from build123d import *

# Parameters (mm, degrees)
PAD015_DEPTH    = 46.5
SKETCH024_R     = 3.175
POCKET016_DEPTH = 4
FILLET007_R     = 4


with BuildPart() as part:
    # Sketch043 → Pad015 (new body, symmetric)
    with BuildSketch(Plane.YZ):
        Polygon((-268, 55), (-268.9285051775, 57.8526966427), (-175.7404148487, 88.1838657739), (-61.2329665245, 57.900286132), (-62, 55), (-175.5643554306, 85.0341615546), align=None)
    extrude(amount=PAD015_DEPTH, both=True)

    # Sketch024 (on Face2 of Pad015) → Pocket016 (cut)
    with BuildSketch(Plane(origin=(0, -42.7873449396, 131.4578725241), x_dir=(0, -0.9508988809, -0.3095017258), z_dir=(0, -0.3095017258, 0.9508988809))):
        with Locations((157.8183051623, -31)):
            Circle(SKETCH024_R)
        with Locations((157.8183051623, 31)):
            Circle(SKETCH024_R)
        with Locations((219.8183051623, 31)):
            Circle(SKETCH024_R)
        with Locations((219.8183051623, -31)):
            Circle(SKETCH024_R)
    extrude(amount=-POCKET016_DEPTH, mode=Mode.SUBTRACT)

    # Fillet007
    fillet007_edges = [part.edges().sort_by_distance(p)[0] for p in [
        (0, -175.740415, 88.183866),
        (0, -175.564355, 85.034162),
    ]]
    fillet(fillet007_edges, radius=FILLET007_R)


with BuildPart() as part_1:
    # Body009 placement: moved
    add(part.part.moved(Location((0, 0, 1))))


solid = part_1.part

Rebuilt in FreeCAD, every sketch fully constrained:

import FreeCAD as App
import Part
import Sketcher
Q = App.Units.Quantity


def edges_at(feature, points):
    """Names of the edges that pass closest to the given points."""
    edges = feature.Shape.Edges
    near = lambda p: min(range(len(edges)), key=lambda i: edges[i].distToShape(Part.Vertex(*p))[0])
    return sorted({f"Edge{near(p) + 1}" for p in points})

doc = App.newDocument("Part")
body = doc.addObject("PartDesign::Body", "Body")

sketch1 = doc.addObject("Sketcher::SketchObject", "Sketch")
body.addObject(sketch1)
sketch1.AttachmentSupport = (doc.YZ_Plane, [""])
sketch1.MapMode = "FlatFace"
sketch1.addGeometry([
    Part.LineSegment(App.Vector(-268.9, 57.9, 0), App.Vector(-268, 55, 0)),
    Part.LineSegment(App.Vector(-268, 55, 0), App.Vector(-175.6, 85, 0)),
    Part.LineSegment(App.Vector(-175.6, 85, 0), App.Vector(-62, 55, 0)),
    Part.LineSegment(App.Vector(-62, 55, 0), App.Vector(-61.2, 57.9, 0)),
    Part.LineSegment(App.Vector(-61.2, 57.9, 0), App.Vector(-175.7, 88.2, 0)),
    Part.LineSegment(App.Vector(-175.7, 88.2, 0), App.Vector(-268.9, 57.9, 0)),
], False)
sketch1.addConstraint([
    Sketcher.Constraint("Coincident", 0, 2, 1, 1),
    Sketcher.Constraint("Coincident", 1, 2, 2, 1),
    Sketcher.Constraint("Coincident", 2, 2, 3, 1),
    Sketcher.Constraint("Coincident", 3, 2, 4, 1),
    Sketcher.Constraint("Coincident", 4, 2, 5, 1),
    Sketcher.Constraint("Coincident", 5, 2, 0, 1),
    Sketcher.Constraint("Perpendicular", 2, 3),
    Sketcher.Constraint("Perpendicular", 3, 4),
    Sketcher.Constraint("Perpendicular", 0, 5),
    Sketcher.Constraint("Horizontal", 0, 2, 2, 2),
    Sketcher.Constraint("Equal", 0, 3),
    Sketcher.Constraint("Angle", 1, Q("18 deg")),
    Sketcher.Constraint("Distance", 0, Q("3 mm")),
    Sketcher.Constraint("Distance", 5, Q("98 mm")),
    Sketcher.Constraint("DistanceX", 0, 2, -1, 1, Q("268 mm")),
    Sketcher.Constraint("DistanceY", -1, 1, 0, 2, Q("55 mm")),
    Sketcher.Constraint("DistanceX", 2, 2, -1, 1, Q("62 mm")),
    Sketcher.Constraint("Distance", 1, Q("97.192588 mm")),
])
pad1 = doc.addObject("PartDesign::Pad", "Pad")
body.addObject(pad1)
pad1.Profile = sketch1
pad1.Length = 93
pad1.Midplane = True

sketch2 = doc.addObject("Sketcher::SketchObject", "Sketch001")
body.addObject(sketch2)
sketch2.Placement = App.Placement(App.Vector(0, -42.787345, 131.457873), App.Rotation(App.Vector(0, -0.950898881, -0.309501726), App.Vector(1, 0, 0), App.Vector(0, -0.309501726, 0.950898881), "ZXY"))
sketch2.addGeometry([
    Part.Circle(App.Vector(157.8, -31, 0), App.Vector(0, 0, 1), 3.2),
    Part.Circle(App.Vector(157.8, 31, 0), App.Vector(0, 0, 1), 3.2),
    Part.Circle(App.Vector(219.8, 31, 0), App.Vector(0, 0, 1), 3.2),
    Part.Circle(App.Vector(219.8, -31, 0), App.Vector(0, 0, 1), 3.2),
], False)
sketch2.addConstraint([
    Sketcher.Constraint("Equal", 0, 1),
    Sketcher.Constraint("Equal", 1, 2),
    Sketcher.Constraint("Equal", 2, 3),
    Sketcher.Constraint("Symmetric", 0, 3, 1, 3, -1),
    Sketcher.Constraint("Symmetric", 2, 3, 3, 3, -1),
    Sketcher.Constraint("Horizontal", 1, 3, 2, 3),
    Sketcher.Constraint("Diameter", 0, Q("6.35 mm")),
    Sketcher.Constraint("DistanceY", 0, 3, -1, 1, Q("31 mm")),
    Sketcher.Constraint("DistanceX", 1, 3, 2, 3, Q("62 mm")),
    Sketcher.Constraint("DistanceX", -1, 1, 0, 3, Q("157.818305 mm")),
])
pocket1 = doc.addObject("PartDesign::Pocket", "Pocket")
body.addObject(pocket1)
pocket1.Profile = sketch2
pocket1.Length = 4
doc.recompute()

fillet = doc.addObject("PartDesign::Fillet", "Fillet")
body.addObject(fillet)
fillet.Base = (pocket1, edges_at(pocket1, [(0, -175.74, 88.184), (0, -175.564, 85.034)]))
fillet.Radius = 4
body2 = doc.addObject("PartDesign::Body", "Body001")
doc.recompute()

body.Placement = App.Placement(App.Vector(0, 0, 1), App.Rotation(App.Vector(0, 0, 1), 0))
boolean = doc.addObject("PartDesign::Boolean", "Boolean")
body2.addObject(boolean)
boolean.Type = "Fuse"
boolean.addObjects([body])

doc.recompute()
